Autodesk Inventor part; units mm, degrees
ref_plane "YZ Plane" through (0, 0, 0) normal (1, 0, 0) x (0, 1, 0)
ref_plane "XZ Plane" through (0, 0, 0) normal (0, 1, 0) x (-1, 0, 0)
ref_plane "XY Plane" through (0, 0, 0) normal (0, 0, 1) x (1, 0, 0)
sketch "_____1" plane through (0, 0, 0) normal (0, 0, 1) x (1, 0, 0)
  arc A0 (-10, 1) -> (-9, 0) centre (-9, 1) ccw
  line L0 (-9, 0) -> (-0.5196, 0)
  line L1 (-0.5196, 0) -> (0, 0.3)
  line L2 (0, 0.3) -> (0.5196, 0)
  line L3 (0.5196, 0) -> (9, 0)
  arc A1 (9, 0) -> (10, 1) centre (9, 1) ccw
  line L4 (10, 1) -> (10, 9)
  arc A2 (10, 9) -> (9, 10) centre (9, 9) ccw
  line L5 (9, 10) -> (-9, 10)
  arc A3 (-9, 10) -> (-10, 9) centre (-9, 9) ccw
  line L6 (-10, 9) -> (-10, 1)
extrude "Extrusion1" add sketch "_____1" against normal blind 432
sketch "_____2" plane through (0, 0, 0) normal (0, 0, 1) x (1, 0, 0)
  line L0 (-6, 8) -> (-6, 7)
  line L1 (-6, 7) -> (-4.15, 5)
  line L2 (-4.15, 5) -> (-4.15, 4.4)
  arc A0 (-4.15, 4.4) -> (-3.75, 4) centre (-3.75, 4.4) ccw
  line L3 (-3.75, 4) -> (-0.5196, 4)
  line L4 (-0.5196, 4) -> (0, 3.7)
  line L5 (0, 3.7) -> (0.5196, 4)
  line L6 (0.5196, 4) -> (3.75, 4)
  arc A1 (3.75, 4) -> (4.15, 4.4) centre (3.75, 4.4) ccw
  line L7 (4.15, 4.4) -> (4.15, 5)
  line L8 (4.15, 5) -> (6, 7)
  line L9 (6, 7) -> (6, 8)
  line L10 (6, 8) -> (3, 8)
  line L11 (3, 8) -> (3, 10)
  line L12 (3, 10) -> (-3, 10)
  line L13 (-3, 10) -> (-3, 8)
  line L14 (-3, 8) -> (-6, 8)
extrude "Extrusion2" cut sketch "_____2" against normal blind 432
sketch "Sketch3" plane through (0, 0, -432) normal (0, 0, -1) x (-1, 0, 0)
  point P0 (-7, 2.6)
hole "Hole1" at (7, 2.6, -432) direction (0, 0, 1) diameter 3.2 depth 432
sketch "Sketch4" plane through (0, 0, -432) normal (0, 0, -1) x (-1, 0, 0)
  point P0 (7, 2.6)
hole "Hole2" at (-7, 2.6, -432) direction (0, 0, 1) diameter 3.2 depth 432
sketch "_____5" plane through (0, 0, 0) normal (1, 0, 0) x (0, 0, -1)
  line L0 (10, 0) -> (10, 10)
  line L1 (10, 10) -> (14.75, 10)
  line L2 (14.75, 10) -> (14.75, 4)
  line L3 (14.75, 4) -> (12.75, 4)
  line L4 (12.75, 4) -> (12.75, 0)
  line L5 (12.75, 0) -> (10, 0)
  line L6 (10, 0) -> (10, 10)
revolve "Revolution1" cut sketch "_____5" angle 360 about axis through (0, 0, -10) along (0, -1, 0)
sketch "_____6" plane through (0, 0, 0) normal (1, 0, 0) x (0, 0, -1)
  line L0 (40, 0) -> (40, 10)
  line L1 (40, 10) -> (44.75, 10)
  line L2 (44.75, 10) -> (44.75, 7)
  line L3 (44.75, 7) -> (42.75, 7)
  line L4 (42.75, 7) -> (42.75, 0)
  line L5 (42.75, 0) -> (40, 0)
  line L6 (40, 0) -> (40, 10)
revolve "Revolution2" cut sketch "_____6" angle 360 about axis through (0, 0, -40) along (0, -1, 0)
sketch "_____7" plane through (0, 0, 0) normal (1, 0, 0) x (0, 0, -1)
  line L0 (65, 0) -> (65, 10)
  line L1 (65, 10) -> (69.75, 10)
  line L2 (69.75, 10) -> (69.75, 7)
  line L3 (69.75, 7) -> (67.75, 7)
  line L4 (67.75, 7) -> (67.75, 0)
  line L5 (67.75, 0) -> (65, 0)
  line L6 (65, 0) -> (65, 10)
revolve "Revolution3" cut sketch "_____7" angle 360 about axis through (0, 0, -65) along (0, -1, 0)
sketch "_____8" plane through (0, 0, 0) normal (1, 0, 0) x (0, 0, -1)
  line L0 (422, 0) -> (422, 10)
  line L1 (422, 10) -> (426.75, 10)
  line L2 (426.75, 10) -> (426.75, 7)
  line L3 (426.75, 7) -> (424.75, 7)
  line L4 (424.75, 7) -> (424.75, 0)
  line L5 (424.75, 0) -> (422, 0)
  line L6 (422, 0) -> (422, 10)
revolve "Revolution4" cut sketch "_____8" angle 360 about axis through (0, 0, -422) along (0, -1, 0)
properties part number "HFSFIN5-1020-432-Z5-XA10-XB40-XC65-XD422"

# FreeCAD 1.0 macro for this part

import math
import FreeCAD as App
import Part
import Sketcher
Q = App.Units.Quantity


def add_polygon(sketch, points):
    """Adds a closed chain of lines whose ends are joined by coincident constraints."""
    first, n = sketch.GeometryCount, len(points)
    for a, b in zip(points, points[1:] + points[:1]):
        sketch.addGeometry(Part.LineSegment(App.Vector(*a, 0), App.Vector(*b, 0)), False)
    for i in range(n):
        sketch.addConstraint(Sketcher.Constraint("Coincident", first + i, 2, first + (i + 1) % n, 1))

doc = App.newDocument("Part")
body = doc.addObject("PartDesign::Body", "Body")

# Sketch on XY plane
sketch1 = doc.addObject("Sketcher::SketchObject", "Sketch")
body.addObject(sketch1)
sketch1.AttachmentSupport = (doc.XY_Plane, [""])
sketch1.MapMode = "FlatFace"
sketch1.addGeometry([
    Part.LineSegment(App.Vector(-10, 9, 0), App.Vector(-10, 1, 0)),  # 0
    Part.ArcOfCircle(Part.Circle(App.Vector(-9, 1, 0), App.Vector(0, 0, 1), 1), math.radians(180), math.radians(270)),  # 1
    Part.LineSegment(App.Vector(-9, 0, 0), App.Vector(-0.5196, 0, 0)),  # 2
    Part.LineSegment(App.Vector(-0.5196, 0, 0), App.Vector(0, 0.3, 0)),  # 3
    Part.LineSegment(App.Vector(0, 0.3, 0), App.Vector(0.5196, 0, 0)),  # 4
    Part.LineSegment(App.Vector(0.5196, 0, 0), App.Vector(9, 0, 0)),  # 5
    Part.ArcOfCircle(Part.Circle(App.Vector(9, 1, 0), App.Vector(0, 0, 1), 1), math.radians(-90), math.radians(0)),  # 6
    Part.LineSegment(App.Vector(10, 1, 0), App.Vector(10, 9, 0)),  # 7
    Part.ArcOfCircle(Part.Circle(App.Vector(9, 9, 0), App.Vector(0, 0, 1), 1), math.radians(0), math.radians(90)),  # 8
    Part.LineSegment(App.Vector(9, 10, 0), App.Vector(-9, 10, 0)),  # 9
    Part.ArcOfCircle(Part.Circle(App.Vector(-9, 9, 0), App.Vector(0, 0, 1), 1), math.radians(90), math.radians(180)),  # 10
], False)
sketch1.addConstraint([
    Sketcher.Constraint("Tangent", 0, 2, 1, 1),
    Sketcher.Constraint("Tangent", 1, 2, 2, 1),
    Sketcher.Constraint("Coincident", 2, 2, 3, 1),
    Sketcher.Constraint("Coincident", 3, 2, 4, 1),
    Sketcher.Constraint("Coincident", 4, 2, 5, 1),
    Sketcher.Constraint("Tangent", 5, 2, 6, 1),
    Sketcher.Constraint("Tangent", 6, 2, 7, 1),
    Sketcher.Constraint("Tangent", 7, 2, 8, 1),
    Sketcher.Constraint("Tangent", 8, 2, 9, 1),
    Sketcher.Constraint("Tangent", 9, 2, 10, 1),
    Sketcher.Constraint("Tangent", 10, 2, 0, 1),
    Sketcher.Constraint("Vertical", 0),
    Sketcher.Constraint("Horizontal", 2),
    Sketcher.Constraint("Horizontal", 5),
    Sketcher.Constraint("Vertical", 7),
    Sketcher.Constraint("Horizontal", 9),
    Sketcher.Constraint("Equal", 1, 6),
    Sketcher.Constraint("Equal", 6, 8),
    Sketcher.Constraint("Equal", 8, 10),
    Sketcher.Constraint("Symmetric", 2, 2, 4, 2, -1, 1),
    Sketcher.Constraint("Symmetric", 1, 3, 6, 3, -2),
    Sketcher.Constraint("PointOnObject", 3, 2, -2),
    Sketcher.Constraint("Radius", 1, Q("1 mm")),
    Sketcher.Constraint("DistanceX", 9, 2, 9, 1, Q("18 mm")),
    Sketcher.Constraint("DistanceY", 0, 2, 0, 1, Q("8 mm")),
    Sketcher.Constraint("Angle", 3, Q("30.0007 deg")),
    Sketcher.Constraint("Distance", 3, Q("0.6 mm")),
])
pad1 = doc.addObject("PartDesign::Pad", "Pad")
body.addObject(pad1)
pad1.Profile = sketch1
pad1.Length = 432
pad1.Reversed = True

# Sketch on XY plane
sketch2 = doc.addObject("Sketcher::SketchObject", "Sketch001")
body.addObject(sketch2)
sketch2.AttachmentSupport = (doc.XY_Plane, [""])
sketch2.MapMode = "FlatFace"
sketch2.addGeometry([
    Part.LineSegment(App.Vector(-3, 8, 0), App.Vector(-6, 8, 0)),  # 0
    Part.LineSegment(App.Vector(-6, 8, 0), App.Vector(-6, 7, 0)),  # 1
    Part.LineSegment(App.Vector(-6, 7, 0), App.Vector(-4.15, 5, 0)),  # 2
    Part.LineSegment(App.Vector(-4.15, 5, 0), App.Vector(-4.15, 4.4, 0)),  # 3
    Part.ArcOfCircle(Part.Circle(App.Vector(-3.75, 4.4, 0), App.Vector(0, 0, 1), 0.4), math.radians(180), math.radians(270)),  # 4
    Part.LineSegment(App.Vector(-3.75, 4, 0), App.Vector(-0.5196, 4, 0)),  # 5
    Part.LineSegment(App.Vector(-0.5196, 4, 0), App.Vector(0, 3.7, 0)),  # 6
    Part.LineSegment(App.Vector(0, 3.7, 0), App.Vector(0.5196, 4, 0)),  # 7
    Part.LineSegment(App.Vector(0.5196, 4, 0), App.Vector(3.75, 4, 0)),  # 8
    Part.ArcOfCircle(Part.Circle(App.Vector(3.75, 4.4, 0), App.Vector(0, 0, 1), 0.4), math.radians(-90), math.radians(0)),  # 9
    Part.LineSegment(App.Vector(4.15, 4.4, 0), App.Vector(4.15, 5, 0)),  # 10
    Part.LineSegment(App.Vector(4.15, 5, 0), App.Vector(6, 7, 0)),  # 11
    Part.LineSegment(App.Vector(6, 7, 0), App.Vector(6, 8, 0)),  # 12
    Part.LineSegment(App.Vector(6, 8, 0), App.Vector(3, 8, 0)),  # 13
    Part.LineSegment(App.Vector(3, 8, 0), App.Vector(3, 10, 0)),  # 14
    Part.LineSegment(App.Vector(3, 10, 0), App.Vector(-3, 10, 0)),  # 15
    Part.LineSegment(App.Vector(-3, 10, 0), App.Vector(-3, 8, 0)),  # 16
], False)
sketch2.addConstraint([
    Sketcher.Constraint("Coincident", 0, 2, 1, 1),
    Sketcher.Constraint("Coincident", 1, 2, 2, 1),
    Sketcher.Constraint("Coincident", 2, 2, 3, 1),
    Sketcher.Constraint("Tangent", 3, 2, 4, 1),
    Sketcher.Constraint("Tangent", 4, 2, 5, 1),
    Sketcher.Constraint("Coincident", 5, 2, 6, 1),
    Sketcher.Constraint("Coincident", 6, 2, 7, 1),
    Sketcher.Constraint("Coincident", 7, 2, 8, 1),
    Sketcher.Constraint("Tangent", 8, 2, 9, 1),
    Sketcher.Constraint("Tangent", 9, 2, 10, 1),
    Sketcher.Constraint("Coincident", 10, 2, 11, 1),
    Sketcher.Constraint("Coincident", 11, 2, 12, 1),
    Sketcher.Constraint("Coincident", 12, 2, 13, 1),
    Sketcher.Constraint("Coincident", 13, 2, 14, 1),
    Sketcher.Constraint("Coincident", 14, 2, 15, 1),
    Sketcher.Constraint("Coincident", 15, 2, 16, 1),
    Sketcher.Constraint("Coincident", 16, 2, 0, 1),
    Sketcher.Constraint("Horizontal", 0),
    Sketcher.Constraint("Vertical", 1),
    Sketcher.Constraint("Vertical", 3),
    Sketcher.Constraint("Horizontal", 5),
    Sketcher.Constraint("Horizontal", 8),
    Sketcher.Constraint("Vertical", 10),
    Sketcher.Constraint("Vertical", 12),
    Sketcher.Constraint("Horizontal", 13),
    Sketcher.Constraint("Vertical", 14),
    Sketcher.Constraint("Horizontal", 15),
    Sketcher.Constraint("Vertical", 16),
    Sketcher.Constraint("Equal", 4, 9),
    Sketcher.Constraint("Symmetric", 4, 3, 9, 3, -2),
    Sketcher.Constraint("Symmetric", 1, 2, 11, 2, -2),
    Sketcher.Constraint("Symmetric", 13, 2, 16, 2, -2),
    Sketcher.Constraint("PointOnObject", 6, 2, -2),
    Sketcher.Constraint("Horizontal", 2, 2, 10, 2),
    Sketcher.Constraint("Equal", 5, 8),
    Sketcher.Constraint("Radius", 4, Q("0.4 mm")),
    Sketcher.Constraint("DistanceX", 0, 2, 0, 1, Q("3 mm")),
    Sketcher.Constraint("DistanceX", 15, 2, 15, 1, Q("6 mm")),
    Sketcher.Constraint("DistanceY", 1, 2, 1, 1, Q("1 mm")),
    Sketcher.Constraint("DistanceY", 14, 1, 14, 2, Q("2 mm")),
    Sketcher.Constraint("Angle", 6, Q("-30.0007 deg")),
    Sketcher.Constraint("DistanceY", 3, 2, 3, 1, Q("0.6 mm")),
    Sketcher.Constraint("DistanceY", -1, 1, 0, 2, Q("8 mm")),
    Sketcher.Constraint("DistanceY", -1, 1, 2, 2, Q("5 mm")),
    Sketcher.Constraint("Distance", 6, Q("0.6 mm")),
    Sketcher.Constraint("Angle", 2, Q("-47.2312 deg")),
])
pocket1 = doc.addObject("PartDesign::Pocket", "Pocket")
body.addObject(pocket1)
pocket1.Profile = sketch2
pocket1.Length = 432

# Sketch on XY plane
sketch3 = doc.addObject("Sketcher::SketchObject", "Sketch002")
body.addObject(sketch3)
sketch3.AttachmentSupport = (doc.XY_Plane, [""])
sketch3.MapMode = "FlatFace"
sketch3.AttachmentOffset = App.Placement(App.Vector(0, 0, -432), App.Rotation())
sketch3.addGeometry(Part.Circle(App.Vector(7, 2.6, 0), App.Vector(0, 0, 1), 1.6), False)
sketch3.addConstraint([
    Sketcher.Constraint("Diameter", 0, Q("3.2 mm")),
    Sketcher.Constraint("DistanceX", -1, 1, 0, 3, Q("7 mm")),
    Sketcher.Constraint("DistanceY", -1, 1, 0, 3, Q("2.6 mm")),
])
doc.recompute()
hole = doc.addObject("PartDesign::Hole", "Hole")
body.addObject(hole)
hole.Profile = sketch3
hole.ThreadType = "None"
hole.Diameter = 3.2
hole.DepthType = "Dimension"
hole.Depth = 432
hole.DrillPoint = "Flat"
hole.Reversed = True

# Sketch on XY plane
sketch4 = doc.addObject("Sketcher::SketchObject", "Sketch003")
body.addObject(sketch4)
sketch4.AttachmentSupport = (doc.XY_Plane, [""])
sketch4.MapMode = "FlatFace"
sketch4.AttachmentOffset = App.Placement(App.Vector(0, 0, -432), App.Rotation())
sketch4.addGeometry(Part.Circle(App.Vector(-7, 2.6, 0), App.Vector(0, 0, 1), 1.6), False)
sketch4.addConstraint([
    Sketcher.Constraint("Diameter", 0, Q("3.2 mm")),
    Sketcher.Constraint("DistanceX", 0, 3, -1, 1, Q("7 mm")),
    Sketcher.Constraint("DistanceY", -1, 1, 0, 3, Q("2.6 mm")),
])
doc.recompute()
hole2 = doc.addObject("PartDesign::Hole", "Hole001")
body.addObject(hole2)
hole2.Profile = sketch4
hole2.ThreadType = "None"
hole2.Diameter = 3.2
hole2.DepthType = "Dimension"
hole2.Depth = 432
hole2.DrillPoint = "Flat"
hole2.Reversed = True

# Sketch on YZ plane
sketch5 = doc.addObject("Sketcher::SketchObject", "Sketch004")
body.addObject(sketch5)
sketch5.AttachmentSupport = (doc.YZ_Plane, [""])
sketch5.MapMode = "FlatFace"
add_polygon(sketch5, [(10, -10), (0, -10), (0, -12.75), (4, -12.75), (4, -14.75), (10, -14.75)])  # lines 0-5
sketch5.addGeometry(Part.LineSegment(App.Vector(10, -10, 0), App.Vector(0, -10, 0)), True)  # axis
sketch5.addConstraint([
    Sketcher.Constraint("Horizontal", 0),
    Sketcher.Constraint("Vertical", 1),
    Sketcher.Constraint("Horizontal", 2),
    Sketcher.Constraint("Vertical", 3),
    Sketcher.Constraint("Horizontal", 4),
    Sketcher.Constraint("Vertical", 5),
    Sketcher.Constraint("Horizontal", 6),
    Sketcher.Constraint("Coincident", 6, 1, 5, 2),
    Sketcher.Constraint("PointOnObject", 0, 2, -2),
    Sketcher.Constraint("PointOnObject", 6, 2, -2),
    Sketcher.Constraint("DistanceX", 0, 2, 0, 1, Q("10 mm")),
    Sketcher.Constraint("DistanceX", 2, 1, 2, 2, Q("4 mm")),
    Sketcher.Constraint("DistanceY", 3, 2, 3, 1, Q("2 mm")),
    Sketcher.Constraint("DistanceY", 0, 2, -1, 1, Q("10 mm")),
    Sketcher.Constraint("DistanceY", 1, 2, 1, 1, Q("2.75 mm")),
])
groove = doc.addObject("PartDesign::Groove", "Groove")
body.addObject(groove)
groove.Profile = sketch5
groove.ReferenceAxis = (sketch5, ["Axis0"])
groove.Angle = 360

# Sketch on YZ plane
sketch6 = doc.addObject("Sketcher::SketchObject", "Sketch005")
body.addObject(sketch6)
sketch6.AttachmentSupport = (doc.YZ_Plane, [""])
sketch6.MapMode = "FlatFace"
add_polygon(sketch6, [(10, -40), (0, -40), (0, -42.75), (7, -42.75), (7, -44.75), (10, -44.75)])  # lines 0-5
sketch6.addGeometry(Part.LineSegment(App.Vector(10, -40, 0), App.Vector(0, -40, 0)), True)  # axis
sketch6.addConstraint([
    Sketcher.Constraint("Horizontal", 0),
    Sketcher.Constraint("Vertical", 1),
    Sketcher.Constraint("Horizontal", 2),
    Sketcher.Constraint("Vertical", 3),
    Sketcher.Constraint("Horizontal", 4),
    Sketcher.Constraint("Vertical", 5),
    Sketcher.Constraint("Horizontal", 6),
    Sketcher.Constraint("Coincident", 6, 1, 5, 2),
    Sketcher.Constraint("PointOnObject", 0, 2, -2),
    Sketcher.Constraint("PointOnObject", 6, 2, -2),
    Sketcher.Constraint("DistanceX", 0, 2, 0, 1, Q("10 mm")),
    Sketcher.Constraint("DistanceX", 2, 1, 2, 2, Q("7 mm")),
    Sketcher.Constraint("DistanceY", 3, 2, 3, 1, Q("2 mm")),
    Sketcher.Constraint("DistanceY", 0, 2, -1, 1, Q("40 mm")),
    Sketcher.Constraint("DistanceY", 1, 2, 1, 1, Q("2.75 mm")),
])
groove2 = doc.addObject("PartDesign::Groove", "Groove001")
body.addObject(groove2)
groove2.Profile = sketch6
groove2.ReferenceAxis = (sketch6, ["Axis0"])
groove2.Angle = 360

# Sketch on YZ plane
sketch7 = doc.addObject("Sketcher::SketchObject", "Sketch006")
body.addObject(sketch7)
sketch7.AttachmentSupport = (doc.YZ_Plane, [""])
sketch7.MapMode = "FlatFace"
add_polygon(sketch7, [(10, -65), (0, -65), (0, -67.75), (7, -67.75), (7, -69.75), (10, -69.75)])  # lines 0-5
sketch7.addGeometry(Part.LineSegment(App.Vector(10, -65, 0), App.Vector(0, -65, 0)), True)  # axis
sketch7.addConstraint([
    Sketcher.Constraint("Horizontal", 0),
    Sketcher.Constraint("Vertical", 1),
    Sketcher.Constraint("Horizontal", 2),
    Sketcher.Constraint("Vertical", 3),
    Sketcher.Constraint("Horizontal", 4),
    Sketcher.Constraint("Vertical", 5),
    Sketcher.Constraint("Horizontal", 6),
    Sketcher.Constraint("Coincident", 6, 1, 5, 2),
    Sketcher.Constraint("PointOnObject", 0, 2, -2),
    Sketcher.Constraint("PointOnObject", 6, 2, -2),
    Sketcher.Constraint("DistanceX", 0, 2, 0, 1, Q("10 mm")),
    Sketcher.Constraint("DistanceX", 2, 1, 2, 2, Q("7 mm")),
    Sketcher.Constraint("DistanceY", 3, 2, 3, 1, Q("2 mm")),
    Sketcher.Constraint("DistanceY", 0, 2, -1, 1, Q("65 mm")),
    Sketcher.Constraint("DistanceY", 1, 2, 1, 1, Q("2.75 mm")),
])
groove3 = doc.addObject("PartDesign::Groove", "Groove002")
body.addObject(groove3)
groove3.Profile = sketch7
groove3.ReferenceAxis = (sketch7, ["Axis0"])
groove3.Angle = 360

# Sketch on YZ plane
sketch8 = doc.addObject("Sketcher::SketchObject", "Sketch007")
body.addObject(sketch8)
sketch8.AttachmentSupport = (doc.YZ_Plane, [""])
sketch8.MapMode = "FlatFace"
add_polygon(sketch8, [(10, -422), (0, -422), (0, -424.75), (7, -424.75), (7, -426.75), (10, -426.75)])  # lines 0-5
sketch8.addGeometry(Part.LineSegment(App.Vector(10, -422, 0), App.Vector(0, -422, 0)), True)  # axis
sketch8.addConstraint([
    Sketcher.Constraint("Horizontal", 0),
    Sketcher.Constraint("Vertical", 1),
    Sketcher.Constraint("Horizontal", 2),
    Sketcher.Constraint("Vertical", 3),
    Sketcher.Constraint("Horizontal", 4),
    Sketcher.Constraint("Vertical", 5),
    Sketcher.Constraint("Horizontal", 6),
    Sketcher.Constraint("Coincident", 6, 1, 5, 2),
    Sketcher.Constraint("PointOnObject", 0, 2, -2),
    Sketcher.Constraint("PointOnObject", 6, 2, -2),
    Sketcher.Constraint("DistanceX", 0, 2, 0, 1, Q("10 mm")),
    Sketcher.Constraint("DistanceX", 2, 1, 2, 2, Q("7 mm")),
    Sketcher.Constraint("DistanceY", 3, 2, 3, 1, Q("2 mm")),
    Sketcher.Constraint("DistanceY", 0, 2, -1, 1, Q("422 mm")),
    Sketcher.Constraint("DistanceY", 1, 2, 1, 1, Q("2.75 mm")),
])
groove4 = doc.addObject("PartDesign::Groove", "Groove003")
body.addObject(groove4)
groove4.Profile = sketch8
groove4.ReferenceAxis = (sketch8, ["Axis0"])
groove4.Angle = 360

doc.recompute()
